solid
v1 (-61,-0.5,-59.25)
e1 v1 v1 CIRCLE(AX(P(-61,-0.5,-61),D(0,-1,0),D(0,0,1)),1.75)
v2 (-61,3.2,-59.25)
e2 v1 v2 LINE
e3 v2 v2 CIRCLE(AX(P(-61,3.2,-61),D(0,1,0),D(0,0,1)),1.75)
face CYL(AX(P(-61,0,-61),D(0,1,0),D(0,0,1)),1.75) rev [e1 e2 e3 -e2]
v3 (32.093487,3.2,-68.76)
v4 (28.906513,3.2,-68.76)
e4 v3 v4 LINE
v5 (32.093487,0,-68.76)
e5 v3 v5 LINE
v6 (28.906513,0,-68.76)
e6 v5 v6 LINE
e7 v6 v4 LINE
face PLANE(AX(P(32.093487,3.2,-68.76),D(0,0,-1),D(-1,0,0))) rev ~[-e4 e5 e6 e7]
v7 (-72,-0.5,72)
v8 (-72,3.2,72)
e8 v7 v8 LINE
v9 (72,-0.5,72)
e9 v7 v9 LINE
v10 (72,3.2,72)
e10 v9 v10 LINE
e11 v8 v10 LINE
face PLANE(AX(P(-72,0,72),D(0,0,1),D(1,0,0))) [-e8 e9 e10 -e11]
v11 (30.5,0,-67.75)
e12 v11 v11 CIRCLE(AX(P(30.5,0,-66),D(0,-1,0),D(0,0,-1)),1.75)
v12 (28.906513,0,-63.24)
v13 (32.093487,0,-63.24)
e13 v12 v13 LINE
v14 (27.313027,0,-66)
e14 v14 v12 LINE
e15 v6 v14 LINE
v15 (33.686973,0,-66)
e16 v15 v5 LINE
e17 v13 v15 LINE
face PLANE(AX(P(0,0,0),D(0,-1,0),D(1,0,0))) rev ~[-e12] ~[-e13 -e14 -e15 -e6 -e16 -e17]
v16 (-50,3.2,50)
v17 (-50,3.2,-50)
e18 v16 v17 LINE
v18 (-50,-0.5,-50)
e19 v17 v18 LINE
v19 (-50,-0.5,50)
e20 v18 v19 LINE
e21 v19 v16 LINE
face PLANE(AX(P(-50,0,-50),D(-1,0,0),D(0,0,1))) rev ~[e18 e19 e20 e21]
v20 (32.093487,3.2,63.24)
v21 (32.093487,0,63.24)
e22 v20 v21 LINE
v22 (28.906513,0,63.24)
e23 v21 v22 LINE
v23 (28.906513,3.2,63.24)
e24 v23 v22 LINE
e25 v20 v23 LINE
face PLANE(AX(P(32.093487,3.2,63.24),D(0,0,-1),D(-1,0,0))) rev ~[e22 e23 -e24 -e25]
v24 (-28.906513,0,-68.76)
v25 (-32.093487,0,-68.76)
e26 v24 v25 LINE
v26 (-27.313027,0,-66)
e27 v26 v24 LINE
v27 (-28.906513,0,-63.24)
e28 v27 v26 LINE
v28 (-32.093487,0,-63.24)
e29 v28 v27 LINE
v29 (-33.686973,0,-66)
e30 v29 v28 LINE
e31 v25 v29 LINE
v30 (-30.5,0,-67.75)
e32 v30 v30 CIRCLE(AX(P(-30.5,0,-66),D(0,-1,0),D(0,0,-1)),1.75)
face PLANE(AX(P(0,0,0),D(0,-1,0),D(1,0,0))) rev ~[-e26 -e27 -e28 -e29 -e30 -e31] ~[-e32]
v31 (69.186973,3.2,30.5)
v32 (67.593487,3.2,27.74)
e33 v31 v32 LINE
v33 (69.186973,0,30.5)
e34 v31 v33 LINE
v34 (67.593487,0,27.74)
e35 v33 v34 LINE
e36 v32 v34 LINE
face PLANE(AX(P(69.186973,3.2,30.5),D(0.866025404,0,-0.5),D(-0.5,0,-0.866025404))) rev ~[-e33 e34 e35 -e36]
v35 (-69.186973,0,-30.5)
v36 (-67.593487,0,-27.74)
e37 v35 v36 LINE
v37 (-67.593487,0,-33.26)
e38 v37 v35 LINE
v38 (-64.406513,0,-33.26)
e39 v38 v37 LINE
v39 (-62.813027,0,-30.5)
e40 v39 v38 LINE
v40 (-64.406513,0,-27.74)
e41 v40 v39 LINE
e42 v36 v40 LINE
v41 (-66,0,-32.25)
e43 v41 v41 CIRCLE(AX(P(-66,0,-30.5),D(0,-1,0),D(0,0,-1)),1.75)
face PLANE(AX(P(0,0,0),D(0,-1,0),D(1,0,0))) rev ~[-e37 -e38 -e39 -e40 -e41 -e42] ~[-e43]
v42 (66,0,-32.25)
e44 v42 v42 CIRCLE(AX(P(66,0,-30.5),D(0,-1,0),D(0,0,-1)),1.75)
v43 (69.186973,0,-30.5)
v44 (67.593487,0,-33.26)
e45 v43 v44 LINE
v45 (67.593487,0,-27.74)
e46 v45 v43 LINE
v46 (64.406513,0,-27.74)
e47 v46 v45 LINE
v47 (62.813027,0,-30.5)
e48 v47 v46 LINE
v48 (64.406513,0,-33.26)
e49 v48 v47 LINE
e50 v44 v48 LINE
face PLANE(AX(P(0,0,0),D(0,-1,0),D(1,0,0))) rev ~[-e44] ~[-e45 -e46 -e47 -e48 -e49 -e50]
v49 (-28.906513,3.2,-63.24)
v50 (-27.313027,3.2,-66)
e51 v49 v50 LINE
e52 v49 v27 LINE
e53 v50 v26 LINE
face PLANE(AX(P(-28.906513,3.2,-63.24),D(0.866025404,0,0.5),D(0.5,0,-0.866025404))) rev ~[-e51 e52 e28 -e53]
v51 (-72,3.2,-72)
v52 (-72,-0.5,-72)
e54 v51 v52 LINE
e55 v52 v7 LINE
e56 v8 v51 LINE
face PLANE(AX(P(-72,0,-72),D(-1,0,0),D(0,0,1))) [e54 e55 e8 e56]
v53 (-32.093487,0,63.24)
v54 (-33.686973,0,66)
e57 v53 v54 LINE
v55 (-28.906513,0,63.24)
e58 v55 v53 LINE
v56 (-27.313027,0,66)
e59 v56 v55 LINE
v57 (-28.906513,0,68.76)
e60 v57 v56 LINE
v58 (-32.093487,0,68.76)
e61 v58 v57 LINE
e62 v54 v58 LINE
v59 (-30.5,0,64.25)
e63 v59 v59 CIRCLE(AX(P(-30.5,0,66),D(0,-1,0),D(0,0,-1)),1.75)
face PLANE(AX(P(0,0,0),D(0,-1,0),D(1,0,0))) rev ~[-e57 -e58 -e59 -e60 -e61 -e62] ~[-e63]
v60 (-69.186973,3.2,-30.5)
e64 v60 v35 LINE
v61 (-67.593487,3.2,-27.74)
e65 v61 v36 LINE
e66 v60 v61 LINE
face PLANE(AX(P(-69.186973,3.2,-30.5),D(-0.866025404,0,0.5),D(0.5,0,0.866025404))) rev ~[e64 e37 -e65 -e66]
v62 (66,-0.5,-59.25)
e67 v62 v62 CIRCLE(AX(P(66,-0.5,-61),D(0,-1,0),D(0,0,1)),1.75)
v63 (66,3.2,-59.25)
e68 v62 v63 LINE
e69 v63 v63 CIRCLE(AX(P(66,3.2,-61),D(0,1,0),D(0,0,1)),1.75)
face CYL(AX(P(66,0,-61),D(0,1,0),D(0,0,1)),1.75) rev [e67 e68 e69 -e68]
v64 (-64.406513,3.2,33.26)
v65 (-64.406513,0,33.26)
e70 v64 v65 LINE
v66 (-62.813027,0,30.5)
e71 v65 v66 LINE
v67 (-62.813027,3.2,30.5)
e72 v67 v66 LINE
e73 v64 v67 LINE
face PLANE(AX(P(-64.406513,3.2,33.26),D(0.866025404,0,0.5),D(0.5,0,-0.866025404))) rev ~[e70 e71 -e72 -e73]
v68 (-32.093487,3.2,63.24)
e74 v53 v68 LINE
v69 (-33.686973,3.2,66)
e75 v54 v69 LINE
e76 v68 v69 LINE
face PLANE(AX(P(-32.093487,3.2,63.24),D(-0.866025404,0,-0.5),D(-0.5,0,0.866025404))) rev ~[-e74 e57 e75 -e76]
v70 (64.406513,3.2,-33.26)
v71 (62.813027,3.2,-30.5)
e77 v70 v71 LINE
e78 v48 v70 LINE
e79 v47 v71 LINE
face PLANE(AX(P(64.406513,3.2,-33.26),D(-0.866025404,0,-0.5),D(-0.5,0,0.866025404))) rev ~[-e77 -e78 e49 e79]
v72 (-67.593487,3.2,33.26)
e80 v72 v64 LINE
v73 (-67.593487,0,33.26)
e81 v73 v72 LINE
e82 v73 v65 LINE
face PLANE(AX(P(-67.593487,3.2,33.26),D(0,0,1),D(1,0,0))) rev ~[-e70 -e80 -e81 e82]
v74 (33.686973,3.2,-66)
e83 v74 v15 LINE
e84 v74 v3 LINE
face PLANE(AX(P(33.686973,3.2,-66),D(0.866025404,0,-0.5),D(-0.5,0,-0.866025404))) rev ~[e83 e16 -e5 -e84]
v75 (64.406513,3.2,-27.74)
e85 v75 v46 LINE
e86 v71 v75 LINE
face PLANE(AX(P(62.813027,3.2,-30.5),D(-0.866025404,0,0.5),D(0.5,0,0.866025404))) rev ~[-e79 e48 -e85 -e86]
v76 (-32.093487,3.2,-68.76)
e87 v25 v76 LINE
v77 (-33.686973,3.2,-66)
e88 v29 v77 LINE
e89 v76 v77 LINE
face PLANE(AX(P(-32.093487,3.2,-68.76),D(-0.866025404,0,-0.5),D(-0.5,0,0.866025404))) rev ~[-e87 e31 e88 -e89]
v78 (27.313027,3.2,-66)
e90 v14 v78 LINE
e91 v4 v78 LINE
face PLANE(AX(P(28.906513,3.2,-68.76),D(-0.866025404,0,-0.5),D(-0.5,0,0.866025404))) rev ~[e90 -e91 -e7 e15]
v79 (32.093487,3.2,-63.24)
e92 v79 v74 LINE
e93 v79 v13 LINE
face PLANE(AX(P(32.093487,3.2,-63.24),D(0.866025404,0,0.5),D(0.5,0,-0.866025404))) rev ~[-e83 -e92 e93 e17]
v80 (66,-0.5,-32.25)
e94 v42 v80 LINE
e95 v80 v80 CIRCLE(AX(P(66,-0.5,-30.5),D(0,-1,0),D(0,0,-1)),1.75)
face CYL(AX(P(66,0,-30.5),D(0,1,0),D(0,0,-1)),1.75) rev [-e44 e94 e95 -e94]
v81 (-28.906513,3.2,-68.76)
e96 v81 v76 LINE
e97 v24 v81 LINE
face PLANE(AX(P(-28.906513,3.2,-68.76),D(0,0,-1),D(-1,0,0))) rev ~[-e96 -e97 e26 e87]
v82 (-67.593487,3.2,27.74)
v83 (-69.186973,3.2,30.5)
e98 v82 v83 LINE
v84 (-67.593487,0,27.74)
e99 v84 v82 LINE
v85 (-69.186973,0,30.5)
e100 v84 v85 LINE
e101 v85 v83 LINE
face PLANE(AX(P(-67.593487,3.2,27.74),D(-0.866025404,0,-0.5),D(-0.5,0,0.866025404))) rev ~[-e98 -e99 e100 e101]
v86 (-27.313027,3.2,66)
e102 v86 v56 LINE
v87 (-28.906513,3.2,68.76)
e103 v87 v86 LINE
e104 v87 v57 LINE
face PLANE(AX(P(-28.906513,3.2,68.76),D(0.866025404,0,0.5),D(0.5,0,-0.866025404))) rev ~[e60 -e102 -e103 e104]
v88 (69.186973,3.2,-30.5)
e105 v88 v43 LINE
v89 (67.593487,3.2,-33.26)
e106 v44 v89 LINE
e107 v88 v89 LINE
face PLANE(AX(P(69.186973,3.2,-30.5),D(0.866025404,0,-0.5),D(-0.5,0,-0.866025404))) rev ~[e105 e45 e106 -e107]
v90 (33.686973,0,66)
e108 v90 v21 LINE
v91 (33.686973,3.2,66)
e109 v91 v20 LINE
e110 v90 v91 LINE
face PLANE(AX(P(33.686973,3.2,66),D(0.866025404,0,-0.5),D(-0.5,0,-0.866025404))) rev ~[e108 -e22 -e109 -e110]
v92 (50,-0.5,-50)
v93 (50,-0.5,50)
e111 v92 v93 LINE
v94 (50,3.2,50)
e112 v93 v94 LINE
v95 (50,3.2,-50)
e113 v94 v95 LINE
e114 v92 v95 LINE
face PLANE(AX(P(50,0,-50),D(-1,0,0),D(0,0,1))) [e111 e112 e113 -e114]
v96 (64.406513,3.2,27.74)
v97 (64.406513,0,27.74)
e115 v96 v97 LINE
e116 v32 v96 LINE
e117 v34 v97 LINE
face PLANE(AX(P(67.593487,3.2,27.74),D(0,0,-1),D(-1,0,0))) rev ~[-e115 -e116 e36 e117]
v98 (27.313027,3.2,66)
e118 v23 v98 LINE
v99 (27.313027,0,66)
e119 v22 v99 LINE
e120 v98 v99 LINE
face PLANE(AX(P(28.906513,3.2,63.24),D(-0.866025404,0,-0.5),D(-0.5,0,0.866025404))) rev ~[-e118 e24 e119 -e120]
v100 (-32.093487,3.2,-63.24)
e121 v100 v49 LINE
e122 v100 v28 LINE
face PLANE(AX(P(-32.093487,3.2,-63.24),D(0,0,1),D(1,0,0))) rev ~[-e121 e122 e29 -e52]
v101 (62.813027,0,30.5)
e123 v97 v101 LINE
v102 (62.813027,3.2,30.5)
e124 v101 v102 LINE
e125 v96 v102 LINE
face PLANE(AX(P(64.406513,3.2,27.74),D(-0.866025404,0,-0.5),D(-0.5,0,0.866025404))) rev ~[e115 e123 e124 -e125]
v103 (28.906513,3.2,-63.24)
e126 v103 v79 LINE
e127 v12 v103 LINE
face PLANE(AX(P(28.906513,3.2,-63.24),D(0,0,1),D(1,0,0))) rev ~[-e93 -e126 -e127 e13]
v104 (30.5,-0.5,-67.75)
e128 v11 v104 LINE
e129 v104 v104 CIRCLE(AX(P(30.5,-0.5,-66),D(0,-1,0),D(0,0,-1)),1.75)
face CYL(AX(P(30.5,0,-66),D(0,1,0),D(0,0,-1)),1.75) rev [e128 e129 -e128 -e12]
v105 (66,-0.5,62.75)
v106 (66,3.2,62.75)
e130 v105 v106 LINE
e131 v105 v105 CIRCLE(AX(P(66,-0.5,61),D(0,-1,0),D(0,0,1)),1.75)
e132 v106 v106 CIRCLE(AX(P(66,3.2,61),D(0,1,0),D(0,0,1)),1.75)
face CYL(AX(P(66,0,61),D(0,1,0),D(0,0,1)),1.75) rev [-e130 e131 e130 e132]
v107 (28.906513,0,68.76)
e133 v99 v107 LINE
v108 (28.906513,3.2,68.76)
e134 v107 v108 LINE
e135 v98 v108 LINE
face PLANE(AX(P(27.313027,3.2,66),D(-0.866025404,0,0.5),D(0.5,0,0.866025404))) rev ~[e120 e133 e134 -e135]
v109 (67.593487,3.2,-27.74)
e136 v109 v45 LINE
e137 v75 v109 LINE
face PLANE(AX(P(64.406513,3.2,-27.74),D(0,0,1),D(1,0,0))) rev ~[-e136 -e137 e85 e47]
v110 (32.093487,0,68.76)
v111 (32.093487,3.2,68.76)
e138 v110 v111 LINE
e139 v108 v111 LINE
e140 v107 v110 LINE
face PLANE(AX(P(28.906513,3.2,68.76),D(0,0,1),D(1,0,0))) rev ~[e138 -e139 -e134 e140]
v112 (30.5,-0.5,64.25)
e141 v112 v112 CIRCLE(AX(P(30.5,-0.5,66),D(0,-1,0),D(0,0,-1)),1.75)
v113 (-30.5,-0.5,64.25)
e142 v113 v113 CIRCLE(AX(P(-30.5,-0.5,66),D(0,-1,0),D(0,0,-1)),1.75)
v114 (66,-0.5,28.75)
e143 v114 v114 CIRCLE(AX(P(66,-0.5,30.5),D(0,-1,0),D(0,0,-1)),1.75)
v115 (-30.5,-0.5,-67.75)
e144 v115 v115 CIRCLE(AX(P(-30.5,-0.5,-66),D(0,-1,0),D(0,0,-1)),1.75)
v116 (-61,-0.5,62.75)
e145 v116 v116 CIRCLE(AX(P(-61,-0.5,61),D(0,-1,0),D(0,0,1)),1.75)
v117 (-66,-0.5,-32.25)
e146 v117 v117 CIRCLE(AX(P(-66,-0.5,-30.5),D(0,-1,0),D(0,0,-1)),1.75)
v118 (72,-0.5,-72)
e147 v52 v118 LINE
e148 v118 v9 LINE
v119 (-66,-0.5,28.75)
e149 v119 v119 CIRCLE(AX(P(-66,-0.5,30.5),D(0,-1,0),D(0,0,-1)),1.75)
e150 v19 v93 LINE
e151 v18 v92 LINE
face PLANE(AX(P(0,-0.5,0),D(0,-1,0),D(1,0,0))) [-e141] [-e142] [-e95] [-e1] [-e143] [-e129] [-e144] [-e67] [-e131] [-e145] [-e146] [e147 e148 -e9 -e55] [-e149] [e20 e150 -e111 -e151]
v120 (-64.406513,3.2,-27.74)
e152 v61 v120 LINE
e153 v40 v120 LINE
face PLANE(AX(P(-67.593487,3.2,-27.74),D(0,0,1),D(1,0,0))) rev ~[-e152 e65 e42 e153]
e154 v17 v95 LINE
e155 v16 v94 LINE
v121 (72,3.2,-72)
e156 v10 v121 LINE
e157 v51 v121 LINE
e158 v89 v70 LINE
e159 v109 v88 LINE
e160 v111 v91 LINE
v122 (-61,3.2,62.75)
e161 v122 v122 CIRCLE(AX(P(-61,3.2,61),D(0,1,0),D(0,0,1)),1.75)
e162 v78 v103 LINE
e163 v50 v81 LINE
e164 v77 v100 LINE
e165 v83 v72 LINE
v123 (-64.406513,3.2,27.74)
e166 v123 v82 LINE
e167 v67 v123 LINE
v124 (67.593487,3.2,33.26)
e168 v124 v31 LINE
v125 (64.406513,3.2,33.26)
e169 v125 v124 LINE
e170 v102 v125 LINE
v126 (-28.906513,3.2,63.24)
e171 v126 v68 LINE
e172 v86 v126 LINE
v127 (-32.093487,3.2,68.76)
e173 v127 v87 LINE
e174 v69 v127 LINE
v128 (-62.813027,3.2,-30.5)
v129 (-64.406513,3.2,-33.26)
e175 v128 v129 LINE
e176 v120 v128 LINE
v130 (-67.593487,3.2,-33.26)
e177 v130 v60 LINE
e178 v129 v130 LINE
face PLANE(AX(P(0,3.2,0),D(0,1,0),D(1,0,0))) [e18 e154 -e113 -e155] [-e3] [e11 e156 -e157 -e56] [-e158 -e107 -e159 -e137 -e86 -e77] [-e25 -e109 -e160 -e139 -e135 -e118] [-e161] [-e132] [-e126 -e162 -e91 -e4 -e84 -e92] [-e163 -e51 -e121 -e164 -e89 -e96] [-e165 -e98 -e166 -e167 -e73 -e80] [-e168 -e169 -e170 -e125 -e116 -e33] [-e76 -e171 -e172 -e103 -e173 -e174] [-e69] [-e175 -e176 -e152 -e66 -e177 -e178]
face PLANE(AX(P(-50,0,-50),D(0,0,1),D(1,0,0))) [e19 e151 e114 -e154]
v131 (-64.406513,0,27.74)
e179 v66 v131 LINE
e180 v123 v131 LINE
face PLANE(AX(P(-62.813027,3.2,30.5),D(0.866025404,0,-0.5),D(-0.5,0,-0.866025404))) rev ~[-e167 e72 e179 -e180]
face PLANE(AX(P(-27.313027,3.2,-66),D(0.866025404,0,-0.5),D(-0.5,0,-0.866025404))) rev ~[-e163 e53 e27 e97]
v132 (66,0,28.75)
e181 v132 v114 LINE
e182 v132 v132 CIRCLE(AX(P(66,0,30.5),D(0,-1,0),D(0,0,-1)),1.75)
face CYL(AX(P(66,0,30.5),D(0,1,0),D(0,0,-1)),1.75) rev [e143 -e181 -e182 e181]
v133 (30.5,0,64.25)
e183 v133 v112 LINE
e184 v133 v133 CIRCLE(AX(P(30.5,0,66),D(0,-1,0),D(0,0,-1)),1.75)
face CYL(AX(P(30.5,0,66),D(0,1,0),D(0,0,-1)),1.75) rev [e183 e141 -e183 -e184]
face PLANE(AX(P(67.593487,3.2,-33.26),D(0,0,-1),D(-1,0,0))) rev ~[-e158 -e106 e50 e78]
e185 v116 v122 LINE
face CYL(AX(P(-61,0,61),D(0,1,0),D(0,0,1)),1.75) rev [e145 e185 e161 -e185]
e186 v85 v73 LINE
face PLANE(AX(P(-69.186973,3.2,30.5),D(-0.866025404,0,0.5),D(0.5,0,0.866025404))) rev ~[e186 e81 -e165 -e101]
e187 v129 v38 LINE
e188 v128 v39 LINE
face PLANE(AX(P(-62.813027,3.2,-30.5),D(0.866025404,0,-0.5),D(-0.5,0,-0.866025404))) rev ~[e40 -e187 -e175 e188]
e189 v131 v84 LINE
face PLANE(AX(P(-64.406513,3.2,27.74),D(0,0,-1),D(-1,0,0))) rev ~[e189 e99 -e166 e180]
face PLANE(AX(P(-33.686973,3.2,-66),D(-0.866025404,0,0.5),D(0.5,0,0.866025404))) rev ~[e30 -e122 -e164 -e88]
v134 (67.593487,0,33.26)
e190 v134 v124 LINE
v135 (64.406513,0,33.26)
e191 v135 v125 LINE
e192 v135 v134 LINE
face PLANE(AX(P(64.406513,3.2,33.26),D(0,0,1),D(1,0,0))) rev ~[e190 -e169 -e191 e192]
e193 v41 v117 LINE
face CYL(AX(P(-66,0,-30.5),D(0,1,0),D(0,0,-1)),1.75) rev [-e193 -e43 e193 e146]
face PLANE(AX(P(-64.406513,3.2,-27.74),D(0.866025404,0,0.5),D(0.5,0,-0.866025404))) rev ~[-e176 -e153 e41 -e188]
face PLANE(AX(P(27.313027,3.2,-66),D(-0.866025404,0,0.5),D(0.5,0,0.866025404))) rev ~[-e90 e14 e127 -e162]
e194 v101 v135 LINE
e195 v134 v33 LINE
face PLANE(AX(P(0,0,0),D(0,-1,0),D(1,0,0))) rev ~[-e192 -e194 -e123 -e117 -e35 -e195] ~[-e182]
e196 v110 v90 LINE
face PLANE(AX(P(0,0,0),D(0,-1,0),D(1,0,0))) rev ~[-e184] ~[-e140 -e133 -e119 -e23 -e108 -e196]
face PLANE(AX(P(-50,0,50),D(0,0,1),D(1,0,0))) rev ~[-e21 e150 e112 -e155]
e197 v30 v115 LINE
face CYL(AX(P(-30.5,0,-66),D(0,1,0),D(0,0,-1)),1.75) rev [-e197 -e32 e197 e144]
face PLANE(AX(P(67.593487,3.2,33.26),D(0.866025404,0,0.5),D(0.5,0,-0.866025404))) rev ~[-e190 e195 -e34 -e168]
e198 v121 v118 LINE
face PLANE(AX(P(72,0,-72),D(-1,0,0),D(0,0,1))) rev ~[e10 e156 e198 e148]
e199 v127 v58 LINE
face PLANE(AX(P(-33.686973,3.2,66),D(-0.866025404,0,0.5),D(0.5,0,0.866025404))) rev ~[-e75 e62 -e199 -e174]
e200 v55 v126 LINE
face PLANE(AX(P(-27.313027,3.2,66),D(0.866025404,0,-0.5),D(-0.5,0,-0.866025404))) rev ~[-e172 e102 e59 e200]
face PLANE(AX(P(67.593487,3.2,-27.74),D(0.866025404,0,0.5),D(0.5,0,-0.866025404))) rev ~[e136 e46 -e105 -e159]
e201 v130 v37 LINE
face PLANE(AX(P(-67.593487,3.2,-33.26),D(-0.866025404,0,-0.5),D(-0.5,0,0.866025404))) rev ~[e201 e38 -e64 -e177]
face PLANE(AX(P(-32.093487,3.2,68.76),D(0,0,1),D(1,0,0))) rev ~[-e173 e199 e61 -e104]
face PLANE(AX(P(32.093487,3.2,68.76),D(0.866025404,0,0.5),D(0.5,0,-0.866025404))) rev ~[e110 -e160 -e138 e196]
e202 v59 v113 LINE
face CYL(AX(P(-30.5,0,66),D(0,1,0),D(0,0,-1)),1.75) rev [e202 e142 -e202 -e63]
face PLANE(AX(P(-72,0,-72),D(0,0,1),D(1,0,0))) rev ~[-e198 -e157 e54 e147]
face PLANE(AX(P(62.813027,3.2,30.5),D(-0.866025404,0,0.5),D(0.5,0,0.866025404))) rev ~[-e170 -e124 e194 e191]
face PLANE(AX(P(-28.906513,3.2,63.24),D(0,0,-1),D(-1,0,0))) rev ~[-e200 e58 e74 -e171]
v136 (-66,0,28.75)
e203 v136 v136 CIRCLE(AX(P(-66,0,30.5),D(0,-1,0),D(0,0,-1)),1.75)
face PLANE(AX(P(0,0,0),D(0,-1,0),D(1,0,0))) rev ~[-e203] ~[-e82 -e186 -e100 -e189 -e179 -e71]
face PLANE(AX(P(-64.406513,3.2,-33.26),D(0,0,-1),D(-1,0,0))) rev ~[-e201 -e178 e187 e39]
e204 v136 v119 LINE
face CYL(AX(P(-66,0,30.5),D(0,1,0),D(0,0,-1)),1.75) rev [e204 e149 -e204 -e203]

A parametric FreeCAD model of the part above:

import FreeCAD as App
import Part
import Sketcher
Q = App.Units.Quantity

doc = App.newDocument("Part")
body = doc.addObject("PartDesign::Body", "Body")

sketch1 = body.newObject("Sketcher::SketchObject", "Sketch")
sketch1.AttachmentSupport = (doc.getObject("XZ_Plane"), [""])
sketch1.MapMode = "FlatFace"
sketch1.addGeometry([
    Part.LineSegment(App.Vector(-70, -70, 0), App.Vector(-70, 70, 0)),
    Part.LineSegment(App.Vector(-70, 70, 0), App.Vector(70, 70, 0)),
    Part.LineSegment(App.Vector(70, 70, 0), App.Vector(70, -70, 0)),
    Part.LineSegment(App.Vector(70, -70, 0), App.Vector(-70, -70, 0)),
    Part.Circle(App.Vector(-61, 61, 0), App.Vector(0, 0, 1), 1.5),
    Part.Circle(App.Vector(-30.5, 66, 0), App.Vector(0, 0, 1), 1.5),
    Part.Circle(App.Vector(-66, 30.5, 0), App.Vector(0, 0, 1), 1.5),
    Part.Circle(App.Vector(30.5, 66, 0), App.Vector(0, 0, 1), 1.5),
    Part.Circle(App.Vector(66, 61, 0), App.Vector(0, 0, 1), 1.5),
    Part.Circle(App.Vector(66, 30.5, 0), App.Vector(0, 0, 1), 1.5),
    Part.Circle(App.Vector(-66, -30.5, 0), App.Vector(0, 0, 1), 1.5),
    Part.Circle(App.Vector(-61, -61, 0), App.Vector(0, 0, 1), 1.5),
    Part.Circle(App.Vector(-30.5, -66, 0), App.Vector(0, 0, 1), 1.5),
    Part.Circle(App.Vector(66, -30.5, 0), App.Vector(0, 0, 1), 1.5),
    Part.Circle(App.Vector(30.5, -66, 0), App.Vector(0, 0, 1), 1.5),
    Part.Circle(App.Vector(66, -61, 0), App.Vector(0, 0, 1), 1.5),
], False)
sketch1.addConstraint([
    Sketcher.Constraint("Coincident", 0, 2, 1, 1),
    Sketcher.Constraint("Coincident", 1, 2, 2, 1),
    Sketcher.Constraint("Coincident", 2, 2, 3, 1),
    Sketcher.Constraint("Coincident", 3, 2, 0, 1),
    Sketcher.Constraint("Vertical", 0),
    Sketcher.Constraint("Horizontal", 1),
    Sketcher.Constraint("Vertical", 2),
    Sketcher.Constraint("Horizontal", 3),
    Sketcher.Constraint("Equal", 4, 5),
    Sketcher.Constraint("Equal", 5, 6),
    Sketcher.Constraint("Equal", 6, 7),
    Sketcher.Constraint("Equal", 7, 8),
    Sketcher.Constraint("Equal", 8, 9),
    Sketcher.Constraint("Equal", 9, 10),
    Sketcher.Constraint("Equal", 10, 11),
    Sketcher.Constraint("Equal", 11, 12),
    Sketcher.Constraint("Equal", 12, 13),
    Sketcher.Constraint("Equal", 13, 14),
    Sketcher.Constraint("Equal", 14, 15),
    Sketcher.Constraint("Symmetric", 9, 3, 10, 3, -1, 1),
    Sketcher.Constraint("Symmetric", 7, 3, 12, 3, -1, 1),
    Sketcher.Constraint("Symmetric", 6, 3, 13, 3, -1, 1),
    Sketcher.Constraint("Symmetric", 5, 3, 14, 3, -1, 1),
    Sketcher.Constraint("Symmetric", 0, 2, 2, 2, -1, 1),
    Sketcher.Constraint("Symmetric", 5, 3, 7, 3, -2),
    Sketcher.Constraint("Symmetric", 6, 3, 9, 3, -2),
    Sketcher.Constraint("Symmetric", 4, 3, 11, 3, -1),
    Sketcher.Constraint("Symmetric", 8, 3, 15, 3, -1),
    Sketcher.Constraint("Horizontal", 4, 3, 8, 3),
    Sketcher.Constraint("Vertical", 8, 3, 9, 3),
    Sketcher.Constraint("Equal", 3, 0),
    Sketcher.Constraint("Diameter", 4, 3.0),
    Sketcher.Constraint("DistanceX", 1, 1, 1, 2, 140.0),
    Sketcher.Constraint("DistanceX", 4, 3, -1, 1, 61.0),
    Sketcher.Constraint("DistanceY", -1, 1, 4, 3, 61.0),
    Sketcher.Constraint("DistanceY", -1, 1, 5, 3, 66.0),
    Sketcher.Constraint("DistanceX", 6, 3, -1, 1, 66.0),
    Sketcher.Constraint("DistanceX", 5, 3, 7, 3, 61.0),
    Sketcher.Constraint("DistanceY", 10, 3, 6, 3, 61.0),
])
pad1 = body.newObject("PartDesign::Pad", "Pad")
pad1.Profile = sketch1
pad1.Length = 0.5
pad1.Reversed = True

sketch2 = body.newObject("Sketcher::SketchObject", "Sketch001")
sketch2.AttachmentSupport = (doc.getObject("XZ_Plane"), [""])
sketch2.MapMode = "FlatFace"
sketch2.AttachmentOffset = App.Placement(App.Vector(0, 0, -0.5), App.Rotation())
sketch2.addGeometry([
    Part.Circle(App.Vector(66, -61, 0), App.Vector(0, 0, 1), 1.75),
    Part.Circle(App.Vector(-61, -61, 0), App.Vector(0, 0, 1), 1.75),
    Part.Circle(App.Vector(-61, 61, 0), App.Vector(0, 0, 1), 1.75),
    Part.Circle(App.Vector(66, 61, 0), App.Vector(0, 0, 1), 1.75),
    Part.LineSegment(App.Vector(-28.906513, -63.24, 0), App.Vector(-27.313027, -66, 0)),
    Part.LineSegment(App.Vector(-27.313027, -66, 0), App.Vector(-28.906513, -68.76, 0)),
    Part.LineSegment(App.Vector(-28.906513, -68.76, 0), App.Vector(-32.093487, -68.76, 0)),
    Part.LineSegment(App.Vector(-32.093487, -68.76, 0), App.Vector(-33.686973, -66, 0)),
    Part.LineSegment(App.Vector(-33.686973, -66, 0), App.Vector(-32.093487, -63.24, 0)),
    Part.LineSegment(App.Vector(-32.093487, -63.24, 0), App.Vector(-28.906513, -63.24, 0)),
    Part.LineSegment(App.Vector(32.093487, -63.24, 0), App.Vector(33.686973, -66, 0)),
    Part.LineSegment(App.Vector(33.686973, -66, 0), App.Vector(32.093487, -68.76, 0)),
    Part.LineSegment(App.Vector(32.093487, -68.76, 0), App.Vector(28.906513, -68.76, 0)),
    Part.LineSegment(App.Vector(28.906513, -68.76, 0), App.Vector(27.313027, -66, 0)),
    Part.LineSegment(App.Vector(27.313027, -66, 0), App.Vector(28.906513, -63.24, 0)),
    Part.LineSegment(App.Vector(28.906513, -63.24, 0), App.Vector(32.093487, -63.24, 0)),
    Part.LineSegment(App.Vector(67.593487, -27.74, 0), App.Vector(69.186973, -30.5, 0)),
    Part.LineSegment(App.Vector(69.186973, -30.5, 0), App.Vector(67.593487, -33.26, 0)),
    Part.LineSegment(App.Vector(67.593487, -33.26, 0), App.Vector(64.406513, -33.26, 0)),
    Part.LineSegment(App.Vector(64.406513, -33.26, 0), App.Vector(62.813027, -30.5, 0)),
    Part.LineSegment(App.Vector(62.813027, -30.5, 0), App.Vector(64.406513, -27.74, 0)),
    Part.LineSegment(App.Vector(64.406513, -27.74, 0), App.Vector(67.593487, -27.74, 0)),
    Part.LineSegment(App.Vector(67.593487, 33.26, 0), App.Vector(69.186973, 30.5, 0)),
    Part.LineSegment(App.Vector(69.186973, 30.5, 0), App.Vector(67.593487, 27.74, 0)),
    Part.LineSegment(App.Vector(67.593487, 27.74, 0), App.Vector(64.406513, 27.74, 0)),
    Part.LineSegment(App.Vector(64.406513, 27.74, 0), App.Vector(62.813027, 30.5, 0)),
    Part.LineSegment(App.Vector(62.813027, 30.5, 0), App.Vector(64.406513, 33.26, 0)),
    Part.LineSegment(App.Vector(64.406513, 33.26, 0), App.Vector(67.593487, 33.26, 0)),
    Part.LineSegment(App.Vector(32.093487, 68.76, 0), App.Vector(33.686973, 66, 0)),
    Part.LineSegment(App.Vector(33.686973, 66, 0), App.Vector(32.093487, 63.24, 0)),
    Part.LineSegment(App.Vector(32.093487, 63.24, 0), App.Vector(28.906513, 63.24, 0)),
    Part.LineSegment(App.Vector(28.906513, 63.24, 0), App.Vector(27.313027, 66, 0)),
    Part.LineSegment(App.Vector(27.313027, 66, 0), App.Vector(28.906513, 68.76, 0)),
    Part.LineSegment(App.Vector(28.906513, 68.76, 0), App.Vector(32.093487, 68.76, 0)),
    Part.LineSegment(App.Vector(-28.906513, 68.76, 0), App.Vector(-27.313027, 66, 0)),
    Part.LineSegment(App.Vector(-27.313027, 66, 0), App.Vector(-28.906513, 63.24, 0)),
    Part.LineSegment(App.Vector(-28.906513, 63.24, 0), App.Vector(-32.093487, 63.24, 0)),
    Part.LineSegment(App.Vector(-32.093487, 63.24, 0), App.Vector(-33.686973, 66, 0)),
    Part.LineSegment(App.Vector(-33.686973, 66, 0), App.Vector(-32.093487, 68.76, 0)),
    Part.LineSegment(App.Vector(-32.093487, 68.76, 0), App.Vector(-28.906513, 68.76, 0)),
    Part.LineSegment(App.Vector(-64.406513, 33.26, 0), App.Vector(-62.813027, 30.5, 0)),
    Part.LineSegment(App.Vector(-62.813027, 30.5, 0), App.Vector(-64.406513, 27.74, 0)),
    Part.LineSegment(App.Vector(-64.406513, 27.74, 0), App.Vector(-67.593487, 27.74, 0)),
    Part.LineSegment(App.Vector(-67.593487, 27.74, 0), App.Vector(-69.186973, 30.5, 0)),
    Part.LineSegment(App.Vector(-69.186973, 30.5, 0), App.Vector(-67.593487, 33.26, 0)),
    Part.LineSegment(App.Vector(-67.593487, 33.26, 0), App.Vector(-64.406513, 33.26, 0)),
    Part.LineSegment(App.Vector(-64.406513, -27.74, 0), App.Vector(-62.813027, -30.5, 0)),
    Part.LineSegment(App.Vector(-62.813027, -30.5, 0), App.Vector(-64.406513, -33.26, 0)),
    Part.LineSegment(App.Vector(-64.406513, -33.26, 0), App.Vector(-67.593487, -33.26, 0)),
    Part.LineSegment(App.Vector(-67.593487, -33.26, 0), App.Vector(-69.186973, -30.5, 0)),
    Part.LineSegment(App.Vector(-69.186973, -30.5, 0), App.Vector(-67.593487, -27.74, 0)),
    Part.LineSegment(App.Vector(-67.593487, -27.74, 0), App.Vector(-64.406513, -27.74, 0)),
    Part.LineSegment(App.Vector(-50, -50, 0), App.Vector(-50, 50, 0)),
    Part.LineSegment(App.Vector(-50, 50, 0), App.Vector(50, 50, 0)),
    Part.LineSegment(App.Vector(50, 50, 0), App.Vector(50, -50, 0)),
    Part.LineSegment(App.Vector(50, -50, 0), App.Vector(-50, -50, 0)),
], False)
sketch2.addConstraint([
    Sketcher.Constraint("Coincident", 4, 2, 5, 1),
    Sketcher.Constraint("Coincident", 5, 2, 6, 1),
    Sketcher.Constraint("Coincident", 6, 2, 7, 1),
    Sketcher.Constraint("Coincident", 7, 2, 8, 1),
    Sketcher.Constraint("Coincident", 8, 2, 9, 1),
    Sketcher.Constraint("Coincident", 9, 2, 4, 1),
    Sketcher.Constraint("Coincident", 10, 2, 11, 1),
    Sketcher.Constraint("Coincident", 11, 2, 12, 1),
    Sketcher.Constraint("Coincident", 12, 2, 13, 1),
    Sketcher.Constraint("Coincident", 13, 2, 14, 1),
    Sketcher.Constraint("Coincident", 14, 2, 15, 1),
    Sketcher.Constraint("Coincident", 15, 2, 10, 1),
    Sketcher.Constraint("Coincident", 16, 2, 17, 1),
    Sketcher.Constraint("Coincident", 17, 2, 18, 1),
    Sketcher.Constraint("Coincident", 18, 2, 19, 1),
    Sketcher.Constraint("Coincident", 19, 2, 20, 1),
    Sketcher.Constraint("Coincident", 20, 2, 21, 1),
    Sketcher.Constraint("Coincident", 21, 2, 16, 1),
    Sketcher.Constraint("Coincident", 22, 2, 23, 1),
    Sketcher.Constraint("Coincident", 23, 2, 24, 1),
    Sketcher.Constraint("Coincident", 24, 2, 25, 1),
    Sketcher.Constraint("Coincident", 25, 2, 26, 1),
    Sketcher.Constraint("Coincident", 26, 2, 27, 1),
    Sketcher.Constraint("Coincident", 27, 2, 22, 1),
    Sketcher.Constraint("Coincident", 28, 2, 29, 1),
    Sketcher.Constraint("Coincident", 29, 2, 30, 1),
    Sketcher.Constraint("Coincident", 30, 2, 31, 1),
    Sketcher.Constraint("Coincident", 31, 2, 32, 1),
    Sketcher.Constraint("Coincident", 32, 2, 33, 1),
    Sketcher.Constraint("Coincident", 33, 2, 28, 1),
    Sketcher.Constraint("Coincident", 34, 2, 35, 1),
    Sketcher.Constraint("Coincident", 35, 2, 36, 1),
    Sketcher.Constraint("Coincident", 36, 2, 37, 1),
    Sketcher.Constraint("Coincident", 37, 2, 38, 1),
    Sketcher.Constraint("Coincident", 38, 2, 39, 1),
    Sketcher.Constraint("Coincident", 39, 2, 34, 1),
    Sketcher.Constraint("Coincident", 40, 2, 41, 1),
    Sketcher.Constraint("Coincident", 41, 2, 42, 1),
    Sketcher.Constraint("Coincident", 42, 2, 43, 1),
    Sketcher.Constraint("Coincident", 43, 2, 44, 1),
    Sketcher.Constraint("Coincident", 44, 2, 45, 1),
    Sketcher.Constraint("Coincident", 45, 2, 40, 1),
    Sketcher.Constraint("Coincident", 46, 2, 47, 1),
    Sketcher.Constraint("Coincident", 47, 2, 48, 1),
    Sketcher.Constraint("Coincident", 48, 2, 49, 1),
    Sketcher.Constraint("Coincident", 49, 2, 50, 1),
    Sketcher.Constraint("Coincident", 50, 2, 51, 1),
    Sketcher.Constraint("Coincident", 51, 2, 46, 1),
    Sketcher.Constraint("Coincident", 52, 2, 53, 1),
    Sketcher.Constraint("Coincident", 53, 2, 54, 1),
    Sketcher.Constraint("Coincident", 54, 2, 55, 1),
    Sketcher.Constraint("Coincident", 55, 2, 52, 1),
    Sketcher.Constraint("Horizontal", 6),
    Sketcher.Constraint("Horizontal", 9),
    Sketcher.Constraint("Horizontal", 12),
    Sketcher.Constraint("Horizontal", 15),
    Sketcher.Constraint("Horizontal", 18),
    Sketcher.Constraint("Horizontal", 21),
    Sketcher.Constraint("Horizontal", 24),
    Sketcher.Constraint("Horizontal", 27),
    Sketcher.Constraint("Horizontal", 30),
    Sketcher.Constraint("Horizontal", 33),
    Sketcher.Constraint("Horizontal", 36),
    Sketcher.Constraint("Horizontal", 39),
    Sketcher.Constraint("Horizontal", 42),
    Sketcher.Constraint("Horizontal", 45),
    Sketcher.Constraint("Horizontal", 48),
    Sketcher.Constraint("Horizontal", 51),
    Sketcher.Constraint("Vertical", 52),
    Sketcher.Constraint("Horizontal", 53),
    Sketcher.Constraint("Vertical", 54),
    Sketcher.Constraint("Horizontal", 55),
    Sketcher.Constraint("Equal", 0, 1),
    Sketcher.Constraint("Equal", 1, 2),
    Sketcher.Constraint("Equal", 2, 3),
    Sketcher.Constraint("Symmetric", 7, 2, 28, 2, -1, 1),
    Sketcher.Constraint("Symmetric", 8, 2, 29, 2, -1, 1),
    Sketcher.Constraint("Symmetric", 4, 2, 31, 2, -1, 1),
    Sketcher.Constraint("Symmetric", 5, 2, 32, 2, -1, 1),
    Sketcher.Constraint("Symmetric", 13, 2, 34, 2, -1, 1),
    Sketcher.Constraint("Symmetric", 14, 2, 35, 2, -1, 1),
    Sketcher.Constraint("Symmetric", 10, 2, 37, 2, -1, 1),
    Sketcher.Constraint("Symmetric", 11, 2, 38, 2, -1, 1),
    Sketcher.Constraint("Symmetric", 19, 2, 40, 2, -1, 1),
    Sketcher.Constraint("Symmetric", 20, 2, 41, 2, -1, 1),
    Sketcher.Constraint("Symmetric", 16, 2, 43, 2, -1, 1),
    Sketcher.Constraint("Symmetric", 17, 2, 44, 2, -1, 1),
    Sketcher.Constraint("Symmetric", 25, 2, 46, 2, -1, 1),
    Sketcher.Constraint("Symmetric", 26, 2, 47, 2, -1, 1),
    Sketcher.Constraint("Symmetric", 22, 2, 49, 2, -1, 1),
    Sketcher.Constraint("Symmetric", 23, 2, 50, 2, -1, 1),
    Sketcher.Constraint("Symmetric", 52, 2, 54, 2, -1, 1),
    Sketcher.Constraint("Symmetric", 7, 2, 10, 2, -2),
    Sketcher.Constraint("Symmetric", 6, 2, 11, 2, -2),
    Sketcher.Constraint("Symmetric", 4, 2, 13, 2, -2),
    Sketcher.Constraint("Symmetric", 9, 2, 14, 2, -2),
    Sketcher.Constraint("Symmetric", 25, 2, 40, 2, -2),
    Sketcher.Constraint("Symmetric", 24, 2, 41, 2, -2),
    Sketcher.Constraint("Symmetric", 22, 2, 43, 2, -2),
    Sketcher.Constraint("Symmetric", 27, 2, 44, 2, -2),
    Sketcher.Constraint("Symmetric", 1, 3, 2, 3, -1),
    Sketcher.Constraint("Symmetric", 0, 3, 3, 3, -1),
    Sketcher.Constraint("Parallel", 4, 7),
    Sketcher.Constraint("Parallel", 5, 8),
    Sketcher.Constraint("Parallel", 7, 10),
    Sketcher.Constraint("Parallel", 8, 11),
    Sketcher.Constraint("Parallel", 10, 13),
    Sketcher.Constraint("Parallel", 13, 16),
    Sketcher.Constraint("Parallel", 14, 17),
    Sketcher.Constraint("Parallel", 16, 19),
    Sketcher.Constraint("Parallel", 17, 20),
    Sketcher.Constraint("Parallel", 20, 23),
    Sketcher.Constraint("Parallel", 23, 26),
    Sketcher.Constraint("Parallel", 25, 28),
    Sketcher.Constraint("Parallel", 28, 31),
    Sketcher.Constraint("Parallel", 31, 34),
    Sketcher.Constraint("Parallel", 34, 37),
    Sketcher.Constraint("Parallel", 37, 40),
    Sketcher.Constraint("Parallel", 40, 43),
    Sketcher.Constraint("Parallel", 43, 46),
    Sketcher.Constraint("Parallel", 46, 49),
    Sketcher.Constraint("Horizontal", 0, 3, 1, 3),
    Sketcher.Constraint("Horizontal", 4, 2, 7, 2),
    Sketcher.Constraint("Horizontal", 16, 2, 19, 2),
    Sketcher.Constraint("Vertical", 6, 2, 8, 2),
    Sketcher.Constraint("Vertical", 18, 2, 20, 2),
    Sketcher.Constraint("Equal", 15, 18),
    Sketcher.Constraint("Equal", 55, 52),
    Sketcher.Constraint("Equal", 14, 16),
    Sketcher.Constraint("Diameter", 0, 3.5),
    Sketcher.Constraint("DistanceX", 53, 1, 53, 2, 100.0),
    Sketcher.Constraint("Angle", 4, Q("-60 deg")),
    Sketcher.Constraint("DistanceX", -1, 1, 0, 3, 66.0),
    Sketcher.Constraint("DistanceY", 0, 3, -1, 1, 61.0),
    Sketcher.Constraint("DistanceX", 1, 3, -1, 1, 61.0),
    Sketcher.Constraint("DistanceY", 4, 2, -1, 1, 66.0),
    Sketcher.Constraint("DistanceX", 4, 2, 10, 2, 61.0),
    Sketcher.Constraint("DistanceY", 16, 2, 22, 2, 61.0),
    Sketcher.Constraint("DistanceX", 10, 2, 16, 2, 35.5),
    Sketcher.Constraint("DistanceY", 5, 2, -1, 1, 68.76),
    Sketcher.Constraint("DistanceX", 6, 2, 6, 1, 3.186973),
])
pocket1 = body.newObject("PartDesign::Pocket", "Pocket")
pocket1.Profile = sketch2
pocket1.Length = 10
pocket1.Reversed = True

sketch3 = body.newObject("Sketcher::SketchObject", "Sketch002")
sketch3.AttachmentSupport = (doc.getObject("XZ_Plane"), [""])
sketch3.MapMode = "FlatFace"
sketch3.AttachmentOffset = App.Placement(App.Vector(0, 0, -3.2), App.Rotation())
sketch3.addGeometry([
    Part.LineSegment(App.Vector(-72, -72, 0), App.Vector(-72, 72, 0)),
    Part.LineSegment(App.Vector(-72, 72, 0), App.Vector(72, 72, 0)),
    Part.LineSegment(App.Vector(72, 72, 0), App.Vector(72, -72, 0)),
    Part.LineSegment(App.Vector(72, -72, 0), App.Vector(-72, -72, 0)),
    Part.Circle(App.Vector(-61, 61, 0), App.Vector(0, 0, 1), 1.75),
    Part.LineSegment(App.Vector(-32.093487, 68.76, 0), App.Vector(-33.686973, 66, 0)),
    Part.LineSegment(App.Vector(-33.686973, 66, 0), App.Vector(-32.093487, 63.24, 0)),
    Part.LineSegment(App.Vector(-32.093487, 63.24, 0), App.Vector(-28.906513, 63.24, 0)),
    Part.LineSegment(App.Vector(-28.906513, 63.24, 0), App.Vector(-27.313027, 66, 0)),
    Part.LineSegment(App.Vector(-27.313027, 66, 0), App.Vector(-28.906513, 68.76, 0)),
    Part.LineSegment(App.Vector(-28.906513, 68.76, 0), App.Vector(-32.093487, 68.76, 0)),
    Part.LineSegment(App.Vector(-64.406513, 33.26, 0), App.Vector(-67.593487, 33.26, 0)),
    Part.LineSegment(App.Vector(-67.593487, 33.26, 0), App.Vector(-69.186973, 30.5, 0)),
    Part.LineSegment(App.Vector(-69.186973, 30.5, 0), App.Vector(-67.593487, 27.74, 0)),
    Part.LineSegment(App.Vector(-67.593487, 27.74, 0), App.Vector(-64.406513, 27.74, 0)),
    Part.LineSegment(App.Vector(-64.406513, 27.74, 0), App.Vector(-62.813027, 30.5, 0)),
    Part.LineSegment(App.Vector(-62.813027, 30.5, 0), App.Vector(-64.406513, 33.26, 0)),
    Part.LineSegment(App.Vector(32.093487, 63.24, 0), App.Vector(33.686973, 66, 0)),
    Part.LineSegment(App.Vector(33.686973, 66, 0), App.Vector(32.093487, 68.76, 0)),
    Part.LineSegment(App.Vector(32.093487, 68.76, 0), App.Vector(28.906513, 68.76, 0)),
    Part.LineSegment(App.Vector(28.906513, 68.76, 0), App.Vector(27.313027, 66, 0)),
    Part.LineSegment(App.Vector(27.313027, 66, 0), App.Vector(28.906513, 63.24, 0)),
    Part.LineSegment(App.Vector(28.906513, 63.24, 0), App.Vector(32.093487, 63.24, 0)),
    Part.Circle(App.Vector(66, 61, 0), App.Vector(0, 0, 1), 1.75),
    Part.LineSegment(App.Vector(69.186973, 30.5, 0), App.Vector(67.593487, 33.26, 0)),
    Part.LineSegment(App.Vector(67.593487, 33.26, 0), App.Vector(64.406513, 33.26, 0)),
    Part.LineSegment(App.Vector(64.406513, 33.26, 0), App.Vector(62.813027, 30.5, 0)),
    Part.LineSegment(App.Vector(62.813027, 30.5, 0), App.Vector(64.406513, 27.74, 0)),
    Part.LineSegment(App.Vector(64.406513, 27.74, 0), App.Vector(67.593487, 27.74, 0)),
    Part.LineSegment(App.Vector(67.593487, 27.74, 0), App.Vector(69.186973, 30.5, 0)),
    Part.LineSegment(App.Vector(-62.813027, -30.5, 0), App.Vector(-64.406513, -27.74, 0)),
    Part.LineSegment(App.Vector(-64.406513, -27.74, 0), App.Vector(-67.593487, -27.74, 0)),
    Part.LineSegment(App.Vector(-67.593487, -27.74, 0), App.Vector(-69.186973, -30.5, 0)),
    Part.LineSegment(App.Vector(-69.186973, -30.5, 0), App.Vector(-67.593487, -33.26, 0)),
    Part.LineSegment(App.Vector(-67.593487, -33.26, 0), App.Vector(-64.406513, -33.26, 0)),
    Part.LineSegment(App.Vector(-64.406513, -33.26, 0), App.Vector(-62.813027, -30.5, 0)),
    Part.Circle(App.Vector(-61, -61, 0), App.Vector(0, 0, 1), 1.75),
    Part.LineSegment(App.Vector(-32.093487, -63.24, 0), App.Vector(-33.686973, -66, 0)),
    Part.LineSegment(App.Vector(-33.686973, -66, 0), App.Vector(-32.093487, -68.76, 0)),
    Part.LineSegment(App.Vector(-32.093487, -68.76, 0), App.Vector(-28.906513, -68.76, 0)),
    Part.LineSegment(App.Vector(-28.906513, -68.76, 0), App.Vector(-27.313027, -66, 0)),
    Part.LineSegment(App.Vector(-27.313027, -66, 0), App.Vector(-28.906513, -63.24, 0)),
    Part.LineSegment(App.Vector(-28.906513, -63.24, 0), App.Vector(-32.093487, -63.24, 0)),
    Part.LineSegment(App.Vector(50, 50, 0), App.Vector(-50, 50, 0)),
    Part.LineSegment(App.Vector(-50, 50, 0), App.Vector(-50, -50, 0)),
    Part.LineSegment(App.Vector(-50, -50, 0), App.Vector(50, -50, 0)),
    Part.LineSegment(App.Vector(50, -50, 0), App.Vector(50, 50, 0)),
    Part.LineSegment(App.Vector(64.406513, -27.74, 0), App.Vector(62.813027, -30.5, 0)),
    Part.LineSegment(App.Vector(62.813027, -30.5, 0), App.Vector(64.406513, -33.26, 0)),
    Part.LineSegment(App.Vector(64.406513, -33.26, 0), App.Vector(67.593487, -33.26, 0)),
    Part.LineSegment(App.Vector(67.593487, -33.26, 0), App.Vector(69.186973, -30.5, 0)),
    Part.LineSegment(App.Vector(69.186973, -30.5, 0), App.Vector(67.593487, -27.74, 0)),
    Part.LineSegment(App.Vector(67.593487, -27.74, 0), App.Vector(64.406513, -27.74, 0)),
    Part.LineSegment(App.Vector(32.093487, -63.24, 0), App.Vector(28.906513, -63.24, 0)),
    Part.LineSegment(App.Vector(28.906513, -63.24, 0), App.Vector(27.313027, -66, 0)),
    Part.LineSegment(App.Vector(27.313027, -66, 0), App.Vector(28.906513, -68.76, 0)),
    Part.LineSegment(App.Vector(28.906513, -68.76, 0), App.Vector(32.093487, -68.76, 0)),
    Part.LineSegment(App.Vector(32.093487, -68.76, 0), App.Vector(33.686973, -66, 0)),
    Part.LineSegment(App.Vector(33.686973, -66, 0), App.Vector(32.093487, -63.24, 0)),
    Part.Circle(App.Vector(66, -61, 0), App.Vector(0, 0, 1), 1.75),
], False)
sketch3.addConstraint([
    Sketcher.Constraint("Coincident", 0, 2, 1, 1),
    Sketcher.Constraint("Coincident", 1, 2, 2, 1),
    Sketcher.Constraint("Coincident", 2, 2, 3, 1),
    Sketcher.Constraint("Coincident", 3, 2, 0, 1),
    Sketcher.Constraint("Coincident", 5, 2, 6, 1),
    Sketcher.Constraint("Coincident", 6, 2, 7, 1),
    Sketcher.Constraint("Coincident", 7, 2, 8, 1),
    Sketcher.Constraint("Coincident", 8, 2, 9, 1),
    Sketcher.Constraint("Coincident", 9, 2, 10, 1),
    Sketcher.Constraint("Coincident", 10, 2, 5, 1),
    Sketcher.Constraint("Coincident", 11, 2, 12, 1),
    Sketcher.Constraint("Coincident", 12, 2, 13, 1),
    Sketcher.Constraint("Coincident", 13, 2, 14, 1),
    Sketcher.Constraint("Coincident", 14, 2, 15, 1),
    Sketcher.Constraint("Coincident", 15, 2, 16, 1),
    Sketcher.Constraint("Coincident", 16, 2, 11, 1),
    Sketcher.Constraint("Coincident", 17, 2, 18, 1),
    Sketcher.Constraint("Coincident", 18, 2, 19, 1),
    Sketcher.Constraint("Coincident", 19, 2, 20, 1),
    Sketcher.Constraint("Coincident", 20, 2, 21, 1),
    Sketcher.Constraint("Coincident", 21, 2, 22, 1),
    Sketcher.Constraint("Coincident", 22, 2, 17, 1),
    Sketcher.Constraint("Coincident", 24, 2, 25, 1),
    Sketcher.Constraint("Coincident", 25, 2, 26, 1),
    Sketcher.Constraint("Coincident", 26, 2, 27, 1),
    Sketcher.Constraint("Coincident", 27, 2, 28, 1),
    Sketcher.Constraint("Coincident", 28, 2, 29, 1),
    Sketcher.Constraint("Coincident", 29, 2, 24, 1),
    Sketcher.Constraint("Coincident", 30, 2, 31, 1),
    Sketcher.Constraint("Coincident", 31, 2, 32, 1),
    Sketcher.Constraint("Coincident", 32, 2, 33, 1),
    Sketcher.Constraint("Coincident", 33, 2, 34, 1),
    Sketcher.Constraint("Coincident", 34, 2, 35, 1),
    Sketcher.Constraint("Coincident", 35, 2, 30, 1),
    Sketcher.Constraint("Coincident", 37, 2, 38, 1),
    Sketcher.Constraint("Coincident", 38, 2, 39, 1),
    Sketcher.Constraint("Coincident", 39, 2, 40, 1),
    Sketcher.Constraint("Coincident", 40, 2, 41, 1),
    Sketcher.Constraint("Coincident", 41, 2, 42, 1),
    Sketcher.Constraint("Coincident", 42, 2, 37, 1),
    Sketcher.Constraint("Coincident", 43, 2, 44, 1),
    Sketcher.Constraint("Coincident", 44, 2, 45, 1),
    Sketcher.Constraint("Coincident", 45, 2, 46, 1),
    Sketcher.Constraint("Coincident", 46, 2, 43, 1),
    Sketcher.Constraint("Coincident", 47, 2, 48, 1),
    Sketcher.Constraint("Coincident", 48, 2, 49, 1),
    Sketcher.Constraint("Coincident", 49, 2, 50, 1),
    Sketcher.Constraint("Coincident", 50, 2, 51, 1),
    Sketcher.Constraint("Coincident", 51, 2, 52, 1),
    Sketcher.Constraint("Coincident", 52, 2, 47, 1),
    Sketcher.Constraint("Coincident", 53, 2, 54, 1),
    Sketcher.Constraint("Coincident", 54, 2, 55, 1),
    Sketcher.Constraint("Coincident", 55, 2, 56, 1),
    Sketcher.Constraint("Coincident", 56, 2, 57, 1),
    Sketcher.Constraint("Coincident", 57, 2, 58, 1),
    Sketcher.Constraint("Coincident", 58, 2, 53, 1),
    Sketcher.Constraint("Vertical", 0),
    Sketcher.Constraint("Horizontal", 1),
    Sketcher.Constraint("Vertical", 2),
    Sketcher.Constraint("Horizontal", 3),
    Sketcher.Constraint("Horizontal", 7),
    Sketcher.Constraint("Horizontal", 10),
    Sketcher.Constraint("Horizontal", 11),
    Sketcher.Constraint("Horizontal", 14),
    Sketcher.Constraint("Horizontal", 19),
    Sketcher.Constraint("Horizontal", 22),
    Sketcher.Constraint("Horizontal", 25),
    Sketcher.Constraint("Horizontal", 28),
    Sketcher.Constraint("Horizontal", 31),
    Sketcher.Constraint("Horizontal", 34),
    Sketcher.Constraint("Horizontal", 39),
    Sketcher.Constraint("Horizontal", 42),
    Sketcher.Constraint("Horizontal", 43),
    Sketcher.Constraint("Vertical", 44),
    Sketcher.Constraint("Horizontal", 45),
    Sketcher.Constraint("Vertical", 46),
    Sketcher.Constraint("Horizontal", 49),
    Sketcher.Constraint("Horizontal", 52),
    Sketcher.Constraint("Horizontal", 53),
    Sketcher.Constraint("Horizontal", 56),
    Sketcher.Constraint("Equal", 4, 23),
    Sketcher.Constraint("Equal", 23, 36),
    Sketcher.Constraint("Equal", 36, 59),
    Sketcher.Constraint("Symmetric", 0, 2, 2, 2, -1, 1),
    Sketcher.Constraint("Symmetric", 27, 2, 30, 2, -1, 1),
    Sketcher.Constraint("Symmetric", 29, 2, 32, 2, -1, 1),
    Sketcher.Constraint("Symmetric", 24, 2, 33, 2, -1, 1),
    Sketcher.Constraint("Symmetric", 26, 2, 35, 2, -1, 1),
    Sketcher.Constraint("Symmetric", 17, 2, 37, 2, -1, 1),
    Sketcher.Constraint("Symmetric", 18, 2, 38, 2, -1, 1),
    Sketcher.Constraint("Symmetric", 20, 2, 40, 2, -1, 1),
    Sketcher.Constraint("Symmetric", 21, 2, 41, 2, -1, 1),
    Sketcher.Constraint("Symmetric", 43, 2, 45, 2, -1, 1),
    Sketcher.Constraint("Symmetric", 15, 2, 47, 2, -1, 1),
    Sketcher.Constraint("Symmetric", 16, 2, 48, 2, -1, 1),
    Sketcher.Constraint("Symmetric", 12, 2, 50, 2, -1, 1),
    Sketcher.Constraint("Symmetric", 13, 2, 51, 2, -1, 1),
    Sketcher.Constraint("Symmetric", 7, 2, 53, 2, -1, 1),
    Sketcher.Constraint("Symmetric", 8, 2, 54, 2, -1, 1),
    Sketcher.Constraint("Symmetric", 9, 2, 55, 2, -1, 1),
    Sketcher.Constraint("Symmetric", 5, 2, 57, 2, -1, 1),
    Sketcher.Constraint("Symmetric", 5, 2, 17, 2, -2),
    Sketcher.Constraint("Symmetric", 10, 2, 18, 2, -2),
    Sketcher.Constraint("Symmetric", 8, 2, 20, 2, -2),
    Sketcher.Constraint("Symmetric", 7, 2, 21, 2, -2),
    Sketcher.Constraint("Symmetric", 11, 2, 24, 2, -2),
    Sketcher.Constraint("Symmetric", 15, 2, 26, 2, -2),
    Sketcher.Constraint("Symmetric", 14, 2, 27, 2, -2),
    Sketcher.Constraint("Symmetric", 12, 2, 29, 2, -2),
    Sketcher.Constraint("Symmetric", 4, 3, 36, 3, -1),
    Sketcher.Constraint("Symmetric", 23, 3, 59, 3, -1),
    Sketcher.Constraint("Parallel", 5, 8),
    Sketcher.Constraint("Parallel", 6, 9),
    Sketcher.Constraint("Parallel", 8, 12),
    Sketcher.Constraint("Parallel", 9, 13),
    Sketcher.Constraint("Parallel", 12, 15),
    Sketcher.Constraint("Parallel", 13, 16),
    Sketcher.Constraint("Parallel", 15, 17),
    Sketcher.Constraint("Parallel", 16, 18),
    Sketcher.Constraint("Parallel", 17, 20),
    Sketcher.Constraint("Parallel", 20, 26),
    Sketcher.Constraint("Parallel", 26, 29),
    Sketcher.Constraint("Parallel", 29, 32),
    Sketcher.Constraint("Parallel", 32, 35),
    Sketcher.Constraint("Parallel", 35, 37),
    Sketcher.Constraint("Parallel", 37, 40),
    Sketcher.Constraint("Parallel", 40, 47),
    Sketcher.Constraint("Parallel", 47, 50),
    Sketcher.Constraint("Parallel", 54, 57),
    Sketcher.Constraint("Parallel", 55, 58),
    Sketcher.Constraint("Horizontal", 4, 3, 23, 3),
    Sketcher.Constraint("Horizontal", 5, 2, 8, 2),
    Sketcher.Constraint("Horizontal", 12, 2, 15, 2),
    Sketcher.Constraint("Vertical", 7, 2, 9, 2),
    Sketcher.Constraint("Vertical", 11, 2, 13, 2),
    Sketcher.Constraint("Equal", 10, 11),
    Sketcher.Constraint("Equal", 3, 0),
    Sketcher.Constraint("Equal", 45, 44),
    Sketcher.Constraint("Equal", 9, 12),
    Sketcher.Constraint("Diameter", 4, 3.5),
    Sketcher.Constraint("DistanceX", 1, 1, 1, 2, 144.0),
    Sketcher.Constraint("DistanceX", 43, 2, 43, 1, 100.0),
    Sketcher.Constraint("Angle", 5, Q("-120 deg")),
    Sketcher.Constraint("DistanceX", 4, 3, -1, 1, 61.0),
    Sketcher.Constraint("DistanceY", -1, 1, 4, 3, 61.0),
    Sketcher.Constraint("DistanceX", -1, 1, 23, 3, 66.0),
    Sketcher.Constraint("DistanceY", -1, 1, 5, 2, 66.0),
    Sketcher.Constraint("DistanceX", 8, 2, 17, 2, 61.0),
    Sketcher.Constraint("DistanceY", 48, 2, 27, 2, 61.0),
    Sketcher.Constraint("DistanceX", 11, 2, 6, 2, 35.5),
    Sketcher.Constraint("DistanceY", -1, 1, 6, 2, 63.24),
    Sketcher.Constraint("DistanceX", 7, 1, 7, 2, 3.186973),
])
pad2 = body.newObject("PartDesign::Pad", "Pad001")
pad2.Profile = sketch3
pad2.Length = 2.7

sketch4 = body.newObject("Sketcher::SketchObject", "Sketch003")
sketch4.AttachmentSupport = (doc.getObject("XZ_Plane"), [""])
sketch4.MapMode = "FlatFace"
sketch4.AttachmentOffset = App.Placement(App.Vector(0, 0, -0.5), App.Rotation())
sketch4.addGeometry([
    Part.LineSegment(App.Vector(-72, 72, 0), App.Vector(-72, -72, 0)),
    Part.LineSegment(App.Vector(-72, -72, 0), App.Vector(72, -72, 0)),
    Part.LineSegment(App.Vector(72, -72, 0), App.Vector(72, 72, 0)),
    Part.LineSegment(App.Vector(72, 72, 0), App.Vector(-72, 72, 0)),
    Part.LineSegment(App.Vector(70, -70, 0), App.Vector(-70, -70, 0)),
    Part.LineSegment(App.Vector(-70, -70, 0), App.Vector(-70, 70, 0)),
    Part.LineSegment(App.Vector(-70, 70, 0), App.Vector(70, 70, 0)),
    Part.LineSegment(App.Vector(70, 70, 0), App.Vector(70, -70, 0)),
], False)
sketch4.addConstraint([
    Sketcher.Constraint("Coincident", 0, 2, 1, 1),
    Sketcher.Constraint("Coincident", 1, 2, 2, 1),
    Sketcher.Constraint("Coincident", 2, 2, 3, 1),
    Sketcher.Constraint("Coincident", 3, 2, 0, 1),
    Sketcher.Constraint("Coincident", 4, 2, 5, 1),
    Sketcher.Constraint("Coincident", 5, 2, 6, 1),
    Sketcher.Constraint("Coincident", 6, 2, 7, 1),
    Sketcher.Constraint("Coincident", 7, 2, 4, 1),
    Sketcher.Constraint("Vertical", 0),
    Sketcher.Constraint("Horizontal", 1),
    Sketcher.Constraint("Vertical", 2),
    Sketcher.Constraint("Horizontal", 3),
    Sketcher.Constraint("Horizontal", 4),
    Sketcher.Constraint("Vertical", 5),
    Sketcher.Constraint("Horizontal", 6),
    Sketcher.Constraint("Vertical", 7),
    Sketcher.Constraint("Symmetric", 0, 2, 2, 2, -1, 1),
    Sketcher.Constraint("Symmetric", 4, 2, 6, 2, -1, 1),
    Sketcher.Constraint("Equal", 3, 0),
    Sketcher.Constraint("Equal", 6, 5),
    Sketcher.Constraint("DistanceX", 1, 1, 1, 2, 144.0),
    Sketcher.Constraint("DistanceX", 4, 2, 4, 1, 140.0),
])
pad3 = body.newObject("PartDesign::Pad", "Pad002")
pad3.Profile = sketch4
pad3.Length = 0.5

sketch5 = body.newObject("Sketcher::SketchObject", "Sketch004")
sketch5.AttachmentSupport = (doc.getObject("XZ_Plane"), [""])
sketch5.MapMode = "FlatFace"
sketch5.addGeometry([
    Part.LineSegment(App.Vector(-72, 72, 0), App.Vector(-72, -72, 0)),
    Part.LineSegment(App.Vector(-72, -72, 0), App.Vector(72, -72, 0)),
    Part.LineSegment(App.Vector(72, -72, 0), App.Vector(72, 72, 0)),
    Part.LineSegment(App.Vector(72, 72, 0), App.Vector(-72, 72, 0)),
    Part.Circle(App.Vector(-61, -61, 0), App.Vector(0, 0, 1), 1.75),
    Part.Circle(App.Vector(-30.5, -66, 0), App.Vector(0, 0, 1), 1.75),
    Part.Circle(App.Vector(-66, -30.5, 0), App.Vector(0, 0, 1), 1.75),
    Part.Circle(App.Vector(30.5, -66, 0), App.Vector(0, 0, 1), 1.75),
    Part.Circle(App.Vector(66, -61, 0), App.Vector(0, 0, 1), 1.75),
    Part.Circle(App.Vector(66, -30.5, 0), App.Vector(0, 0, 1), 1.75),
    Part.Circle(App.Vector(-66, 30.5, 0), App.Vector(0, 0, 1), 1.75),
    Part.Circle(App.Vector(-61, 61, 0), App.Vector(0, 0, 1), 1.75),
    Part.Circle(App.Vector(-30.5, 66, 0), App.Vector(0, 0, 1), 1.75),
    Part.LineSegment(App.Vector(50, -50, 0), App.Vector(-50, -50, 0)),
    Part.LineSegment(App.Vector(-50, -50, 0), App.Vector(-50, 50, 0)),
    Part.LineSegment(App.Vector(-50, 50, 0), App.Vector(50, 50, 0)),
    Part.LineSegment(App.Vector(50, 50, 0), App.Vector(50, -50, 0)),
    Part.Circle(App.Vector(66, 30.5, 0), App.Vector(0, 0, 1), 1.75),
    Part.Circle(App.Vector(30.5, 66, 0), App.Vector(0, 0, 1), 1.75),
    Part.Circle(App.Vector(66, 61, 0), App.Vector(0, 0, 1), 1.75),
], False)
sketch5.addConstraint([
    Sketcher.Constraint("Coincident", 0, 2, 1, 1),
    Sketcher.Constraint("Coincident", 1, 2, 2, 1),
    Sketcher.Constraint("Coincident", 2, 2, 3, 1),
    Sketcher.Constraint("Coincident", 3, 2, 0, 1),
    Sketcher.Constraint("Coincident", 13, 2, 14, 1),
    Sketcher.Constraint("Coincident", 14, 2, 15, 1),
    Sketcher.Constraint("Coincident", 15, 2, 16, 1),
    Sketcher.Constraint("Coincident", 16, 2, 13, 1),
    Sketcher.Constraint("Vertical", 0),
    Sketcher.Constraint("Horizontal", 1),
    Sketcher.Constraint("Vertical", 2),
    Sketcher.Constraint("Horizontal", 3),
    Sketcher.Constraint("Horizontal", 13),
    Sketcher.Constraint("Vertical", 14),
    Sketcher.Constraint("Horizontal", 15),
    Sketcher.Constraint("Vertical", 16),
    Sketcher.Constraint("Equal", 4, 5),
    Sketcher.Constraint("Equal", 5, 6),
    Sketcher.Constraint("Equal", 6, 7),
    Sketcher.Constraint("Equal", 7, 8),
    Sketcher.Constraint("Equal", 8, 9),
    Sketcher.Constraint("Equal", 9, 10),
    Sketcher.Constraint("Equal", 10, 11),
    Sketcher.Constraint("Equal", 11, 12),
    Sketcher.Constraint("Equal", 12, 17),
    Sketcher.Constraint("Equal", 17, 18),
    Sketcher.Constraint("Equal", 18, 19),
    Sketcher.Constraint("Symmetric", 9, 3, 10, 3, -1, 1),
    Sketcher.Constraint("Symmetric", 7, 3, 12, 3, -1, 1),
    Sketcher.Constraint("Symmetric", 6, 3, 17, 3, -1, 1),
    Sketcher.Constraint("Symmetric", 5, 3, 18, 3, -1, 1),
    Sketcher.Constraint("Symmetric", 0, 2, 2, 2, -1, 1),
    Sketcher.Constraint("Symmetric", 13, 2, 15, 2, -1, 1),
    Sketcher.Constraint("Symmetric", 5, 3, 7, 3, -2),
    Sketcher.Constraint("Symmetric", 6, 3, 9, 3, -2),
    Sketcher.Constraint("Symmetric", 4, 3, 11, 3, -1),
    Sketcher.Constraint("Symmetric", 8, 3, 19, 3, -1),
    Sketcher.Constraint("Horizontal", 4, 3, 8, 3),
    Sketcher.Constraint("Vertical", 8, 3, 9, 3),
    Sketcher.Constraint("Equal", 3, 0),
    Sketcher.Constraint("Equal", 15, 14),
    Sketcher.Constraint("Diameter", 4, 3.5),
    Sketcher.Constraint("DistanceX", 1, 1, 1, 2, 144.0),
    Sketcher.Constraint("DistanceX", 13, 2, 13, 1, 100.0),
    Sketcher.Constraint("DistanceX", 4, 3, -1, 1, 61.0),
    Sketcher.Constraint("DistanceY", 4, 3, -1, 1, 61.0),
    Sketcher.Constraint("DistanceY", 5, 3, -1, 1, 66.0),
    Sketcher.Constraint("DistanceX", 6, 3, -1, 1, 66.0),
    Sketcher.Constraint("DistanceX", 5, 3, 7, 3, 61.0),
    Sketcher.Constraint("DistanceY", 6, 3, 10, 3, 61.0),
])
pad4 = body.newObject("PartDesign::Pad", "Pad003")
pad4.Profile = sketch5
pad4.Length = 0.5

doc.recompute()
